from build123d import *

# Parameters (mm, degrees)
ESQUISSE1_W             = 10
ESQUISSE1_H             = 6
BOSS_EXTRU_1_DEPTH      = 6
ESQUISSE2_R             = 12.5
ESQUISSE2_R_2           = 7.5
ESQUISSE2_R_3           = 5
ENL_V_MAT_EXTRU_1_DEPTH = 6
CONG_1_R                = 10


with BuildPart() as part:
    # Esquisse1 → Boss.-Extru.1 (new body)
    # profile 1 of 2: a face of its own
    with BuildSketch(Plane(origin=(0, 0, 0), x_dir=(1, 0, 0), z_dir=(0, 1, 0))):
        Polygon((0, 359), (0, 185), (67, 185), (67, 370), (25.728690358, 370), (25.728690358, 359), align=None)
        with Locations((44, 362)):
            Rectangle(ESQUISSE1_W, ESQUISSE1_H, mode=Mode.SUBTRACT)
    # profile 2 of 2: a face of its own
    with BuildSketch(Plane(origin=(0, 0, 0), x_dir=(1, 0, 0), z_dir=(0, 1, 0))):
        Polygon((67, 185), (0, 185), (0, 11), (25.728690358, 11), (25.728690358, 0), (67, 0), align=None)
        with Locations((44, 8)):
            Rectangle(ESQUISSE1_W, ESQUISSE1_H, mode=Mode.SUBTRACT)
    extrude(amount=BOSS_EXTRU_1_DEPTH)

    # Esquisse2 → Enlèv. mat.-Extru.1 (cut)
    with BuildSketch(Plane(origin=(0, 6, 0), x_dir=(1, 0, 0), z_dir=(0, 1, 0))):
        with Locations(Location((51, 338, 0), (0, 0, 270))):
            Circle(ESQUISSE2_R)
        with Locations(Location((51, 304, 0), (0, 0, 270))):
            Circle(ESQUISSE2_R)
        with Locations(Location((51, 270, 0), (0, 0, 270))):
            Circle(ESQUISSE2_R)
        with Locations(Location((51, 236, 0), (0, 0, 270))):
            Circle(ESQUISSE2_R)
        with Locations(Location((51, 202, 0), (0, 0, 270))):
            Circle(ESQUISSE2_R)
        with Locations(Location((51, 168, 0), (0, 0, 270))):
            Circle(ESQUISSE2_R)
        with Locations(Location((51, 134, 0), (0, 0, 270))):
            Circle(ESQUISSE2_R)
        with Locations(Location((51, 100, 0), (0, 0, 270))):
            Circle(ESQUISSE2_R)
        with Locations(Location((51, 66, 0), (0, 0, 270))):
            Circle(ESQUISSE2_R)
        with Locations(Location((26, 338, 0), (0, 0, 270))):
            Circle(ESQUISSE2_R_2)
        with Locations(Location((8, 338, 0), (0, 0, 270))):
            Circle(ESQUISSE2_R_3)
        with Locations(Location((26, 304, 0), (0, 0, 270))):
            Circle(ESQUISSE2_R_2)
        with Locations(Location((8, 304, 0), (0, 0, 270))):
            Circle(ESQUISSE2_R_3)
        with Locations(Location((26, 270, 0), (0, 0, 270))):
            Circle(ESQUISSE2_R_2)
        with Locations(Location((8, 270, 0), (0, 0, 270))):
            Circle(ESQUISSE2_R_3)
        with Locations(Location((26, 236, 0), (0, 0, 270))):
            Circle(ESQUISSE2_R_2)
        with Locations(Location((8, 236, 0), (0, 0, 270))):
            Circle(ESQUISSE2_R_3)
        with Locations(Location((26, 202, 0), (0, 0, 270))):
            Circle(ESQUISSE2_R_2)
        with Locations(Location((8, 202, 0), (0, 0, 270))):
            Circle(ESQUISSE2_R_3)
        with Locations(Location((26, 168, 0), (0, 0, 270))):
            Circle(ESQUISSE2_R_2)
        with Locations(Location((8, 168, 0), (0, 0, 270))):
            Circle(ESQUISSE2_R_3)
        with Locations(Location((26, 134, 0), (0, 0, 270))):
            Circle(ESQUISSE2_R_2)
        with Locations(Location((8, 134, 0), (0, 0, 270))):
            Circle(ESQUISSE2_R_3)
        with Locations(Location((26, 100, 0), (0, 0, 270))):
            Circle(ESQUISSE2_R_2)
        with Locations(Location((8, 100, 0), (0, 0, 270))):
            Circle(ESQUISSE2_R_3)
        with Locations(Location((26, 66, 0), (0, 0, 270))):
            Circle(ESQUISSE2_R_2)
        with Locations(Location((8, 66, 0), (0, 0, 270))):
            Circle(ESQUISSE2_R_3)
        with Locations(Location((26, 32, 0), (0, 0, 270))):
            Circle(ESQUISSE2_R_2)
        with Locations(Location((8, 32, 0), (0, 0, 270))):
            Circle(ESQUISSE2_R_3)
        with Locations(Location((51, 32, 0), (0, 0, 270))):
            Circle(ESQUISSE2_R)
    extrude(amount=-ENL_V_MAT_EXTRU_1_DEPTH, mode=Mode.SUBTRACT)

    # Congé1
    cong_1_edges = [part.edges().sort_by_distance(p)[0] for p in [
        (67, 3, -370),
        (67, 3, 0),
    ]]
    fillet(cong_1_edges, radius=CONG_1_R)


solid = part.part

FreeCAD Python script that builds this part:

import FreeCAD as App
import Part
import Sketcher

V = App.Vector
Q = App.Units.Quantity


def edges_at(feature, points):
    """Names of the edges that pass closest to the given points."""
    edges = feature.Shape.Edges
    near = lambda p: min(range(len(edges)), key=lambda i: edges[i].distToShape(Part.Vertex(*p))[0])
    return sorted({f"Edge{near(p) + 1}" for p in points})

doc = App.newDocument("Part")
params = doc.addObject("Spreadsheet::Sheet", "Params")
for row, (alias, value) in enumerate([
    ("sketch1_width", "10 mm"),
    ("sketch1_height", "348 mm"),
    ("sketch1_height2", "11 mm"),
    ("sketch1_height3", "6 mm"),
    ("pad1_length", "6 mm"),
    ("sketch2_diameter", "25 mm"),
    ("sketch2_diameter2", "15 mm"),
    ("sketch2_diameter3", "10 mm"),
    ("pocket1_length", "6 mm"),
    ("fillet_radius", "10 mm"),
], start=1):
    params.set(f"A{row}", alias)
    params.set(f"B{row}", "=" + value)
    params.setAlias(f"B{row}", alias)

body = doc.addObject("PartDesign::Body", "Body")

sketch1 = doc.addObject("Sketcher::SketchObject", "Sketch")
body.addObject(sketch1)
sketch1.AttachmentSupport = (doc.XZ_Plane, [""])
sketch1.MapMode = "FlatFace"
sketch1.addGeometry(Part.LineSegment(V(0, -359, 0), V(0, -11, 0)), False)
sketch1.addGeometry(Part.LineSegment(V(0, -11, 0), V(26, -11, 0)), False)
sketch1.addGeometry(Part.LineSegment(V(26, -11, 0), V(26, 0, 0)), False)
sketch1.addGeometry(Part.LineSegment(V(26, 0, 0), V(67, 0, 0)), False)
sketch1.addGeometry(Part.LineSegment(V(67, 0, 0), V(67, -370, 0)), False)
sketch1.addGeometry(Part.LineSegment(V(67, -370, 0), V(26, -370, 0)), False)
sketch1.addGeometry(Part.LineSegment(V(26, -370, 0), V(26, -359, 0)), False)
sketch1.addGeometry(Part.LineSegment(V(26, -359, 0), V(0, -359, 0)), False)
sketch1.addGeometry(Part.LineSegment(V(49, -359, 0), V(39, -359, 0)), False)
sketch1.addGeometry(Part.LineSegment(V(39, -359, 0), V(39, -365, 0)), False)
sketch1.addGeometry(Part.LineSegment(V(39, -365, 0), V(49, -365, 0)), False)
sketch1.addGeometry(Part.LineSegment(V(49, -365, 0), V(49, -359, 0)), False)
sketch1.addGeometry(Part.LineSegment(V(39, -5, 0), V(39, -11, 0)), False)
sketch1.addGeometry(Part.LineSegment(V(39, -11, 0), V(49, -11, 0)), False)
sketch1.addGeometry(Part.LineSegment(V(49, -11, 0), V(49, -5, 0)), False)
sketch1.addGeometry(Part.LineSegment(V(49, -5, 0), V(39, -5, 0)), False)
sketch1.addConstraint(Sketcher.Constraint("Coincident", 0, 2, 1, 1))
sketch1.addConstraint(Sketcher.Constraint("Coincident", 1, 2, 2, 1))
sketch1.addConstraint(Sketcher.Constraint("Coincident", 2, 2, 3, 1))
sketch1.addConstraint(Sketcher.Constraint("Coincident", 3, 2, 4, 1))
sketch1.addConstraint(Sketcher.Constraint("Coincident", 4, 2, 5, 1))
sketch1.addConstraint(Sketcher.Constraint("Coincident", 5, 2, 6, 1))
sketch1.addConstraint(Sketcher.Constraint("Coincident", 6, 2, 7, 1))
sketch1.addConstraint(Sketcher.Constraint("Coincident", 7, 2, 0, 1))
sketch1.addConstraint(Sketcher.Constraint("Coincident", 8, 2, 9, 1))
sketch1.addConstraint(Sketcher.Constraint("Coincident", 9, 2, 10, 1))
sketch1.addConstraint(Sketcher.Constraint("Coincident", 10, 2, 11, 1))
sketch1.addConstraint(Sketcher.Constraint("Coincident", 11, 2, 8, 1))
sketch1.addConstraint(Sketcher.Constraint("Coincident", 12, 2, 13, 1))
sketch1.addConstraint(Sketcher.Constraint("Coincident", 13, 2, 14, 1))
sketch1.addConstraint(Sketcher.Constraint("Coincident", 14, 2, 15, 1))
sketch1.addConstraint(Sketcher.Constraint("Coincident", 15, 2, 12, 1))
sketch1.addConstraint(Sketcher.Constraint("Vertical", 0))
sketch1.addConstraint(Sketcher.Constraint("Horizontal", 1))
sketch1.addConstraint(Sketcher.Constraint("Vertical", 2))
sketch1.addConstraint(Sketcher.Constraint("Horizontal", 3))
sketch1.addConstraint(Sketcher.Constraint("Vertical", 4))
sketch1.addConstraint(Sketcher.Constraint("Horizontal", 5))
sketch1.addConstraint(Sketcher.Constraint("Vertical", 6))
sketch1.addConstraint(Sketcher.Constraint("Horizontal", 7))
sketch1.addConstraint(Sketcher.Constraint("Horizontal", 8))
sketch1.addConstraint(Sketcher.Constraint("Vertical", 9))
sketch1.addConstraint(Sketcher.Constraint("Horizontal", 10))
sketch1.addConstraint(Sketcher.Constraint("Vertical", 11))
sketch1.addConstraint(Sketcher.Constraint("Vertical", 12))
sketch1.addConstraint(Sketcher.Constraint("Horizontal", 13))
sketch1.addConstraint(Sketcher.Constraint("Vertical", 14))
sketch1.addConstraint(Sketcher.Constraint("Horizontal", 15))
sketch1.addConstraint(Sketcher.Constraint("PointOnObject", 0, 2, -2))
sketch1.addConstraint(Sketcher.Constraint("PointOnObject", 2, 2, -1))
sketch1.addConstraint(Sketcher.Constraint("Horizontal", 7, 2, 8, 2))
sketch1.addConstraint(Sketcher.Constraint("Horizontal", 1, 2, 12, 2))
sketch1.addConstraint(Sketcher.Constraint("Vertical", 2, 2, 5, 2))
sketch1.addConstraint(Sketcher.Constraint("Vertical", 9, 2, 12, 2))
sketch1.addConstraint(Sketcher.Constraint("Vertical", 11, 2, 13, 2))
sketch1.addConstraint(Sketcher.Constraint("Equal", 2, 6))
sketch1.addConstraint(Sketcher.Constraint("Equal", 11, 12))
sketch1.addConstraint(Sketcher.Constraint("DistanceX", 8, 2, 8, 1, Q("10 mm")))
sketch1.addConstraint(Sketcher.Constraint("DistanceY", 0, 1, 0, 2, Q("348 mm")))
sketch1.addConstraint(Sketcher.Constraint("DistanceY", 2, 1, 2, 2, Q("11 mm")))
sketch1.addConstraint(Sketcher.Constraint("DistanceY", 9, 2, 9, 1, Q("6 mm")))
sketch1.addConstraint(Sketcher.Constraint("DistanceX", -1, 1, 3, 2, Q("67 mm")))
sketch1.addConstraint(Sketcher.Constraint("DistanceX", -1, 1, 8, 2, Q("39 mm")))
sketch1.addConstraint(Sketcher.Constraint("DistanceX", 1, 1, 1, 2, Q("25.72869 mm")))
sketch1.setExpression("Constraints[41]", "Params.sketch1_width")
sketch1.setExpression("Constraints[42]", "Params.sketch1_height")
sketch1.setExpression("Constraints[43]", "Params.sketch1_height2")
sketch1.setExpression("Constraints[44]", "Params.sketch1_height3")
pad1 = doc.addObject("PartDesign::Pad", "Pad")
body.addObject(pad1)
pad1.Profile = sketch1
pad1.setExpression("Length", "Params.pad1_length")
pad1.Reversed = True

sketch2 = doc.addObject("Sketcher::SketchObject", "Sketch001")
body.addObject(sketch2)
sketch2.AttachmentSupport = (doc.XZ_Plane, [""])
sketch2.MapMode = "FlatFace"
sketch2.AttachmentOffset = App.Placement(V(0, 0, -6), App.Rotation())
sketch2.addGeometry(Part.Circle(V(51, -338, 0), V(0, 0, 1), 12), False)
sketch2.addGeometry(Part.Circle(V(51, -304, 0), V(0, 0, 1), 12), False)
sketch2.addGeometry(Part.Circle(V(51, -270, 0), V(0, 0, 1), 12), False)
sketch2.addGeometry(Part.Circle(V(51, -236, 0), V(0, 0, 1), 12), False)
sketch2.addGeometry(Part.Circle(V(51, -202, 0), V(0, 0, 1), 12), False)
sketch2.addGeometry(Part.Circle(V(51, -168, 0), V(0, 0, 1), 12), False)
sketch2.addGeometry(Part.Circle(V(51, -134, 0), V(0, 0, 1), 12), False)
sketch2.addGeometry(Part.Circle(V(51, -100, 0), V(0, 0, 1), 12), False)
sketch2.addGeometry(Part.Circle(V(51, -66, 0), V(0, 0, 1), 12), False)
sketch2.addGeometry(Part.Circle(V(26, -338, 0), V(0, 0, 1), 8), False)
sketch2.addGeometry(Part.Circle(V(8, -338, 0), V(0, 0, 1), 5), False)
sketch2.addGeometry(Part.Circle(V(26, -304, 0), V(0, 0, 1), 8), False)
sketch2.addGeometry(Part.Circle(V(8, -304, 0), V(0, 0, 1), 5), False)
sketch2.addGeometry(Part.Circle(V(26, -270, 0), V(0, 0, 1), 8), False)
sketch2.addGeometry(Part.Circle(V(8, -270, 0), V(0, 0, 1), 5), False)
sketch2.addGeometry(Part.Circle(V(26, -236, 0), V(0, 0, 1), 8), False)
sketch2.addGeometry(Part.Circle(V(8, -236, 0), V(0, 0, 1), 5), False)
sketch2.addGeometry(Part.Circle(V(26, -202, 0), V(0, 0, 1), 8), False)
sketch2.addGeometry(Part.Circle(V(8, -202, 0), V(0, 0, 1), 5), False)
sketch2.addGeometry(Part.Circle(V(26, -168, 0), V(0, 0, 1), 8), False)
sketch2.addGeometry(Part.Circle(V(8, -168, 0), V(0, 0, 1), 5), False)
sketch2.addGeometry(Part.Circle(V(26, -134, 0), V(0, 0, 1), 8), False)
sketch2.addGeometry(Part.Circle(V(8, -134, 0), V(0, 0, 1), 5), False)
sketch2.addGeometry(Part.Circle(V(26, -100, 0), V(0, 0, 1), 8), False)
sketch2.addGeometry(Part.Circle(V(8, -100, 0), V(0, 0, 1), 5), False)
sketch2.addGeometry(Part.Circle(V(26, -66, 0), V(0, 0, 1), 8), False)
sketch2.addGeometry(Part.Circle(V(8, -66, 0), V(0, 0, 1), 5), False)
sketch2.addGeometry(Part.Circle(V(26, -32, 0), V(0, 0, 1), 8), False)
sketch2.addGeometry(Part.Circle(V(8, -32, 0), V(0, 0, 1), 5), False)
sketch2.addGeometry(Part.Circle(V(51, -32, 0), V(0, 0, 1), 12), False)
sketch2.addConstraint(Sketcher.Constraint("Equal", 0, 1))
sketch2.addConstraint(Sketcher.Constraint("Equal", 1, 2))
sketch2.addConstraint(Sketcher.Constraint("Equal", 2, 3))
sketch2.addConstraint(Sketcher.Constraint("Equal", 3, 4))
sketch2.addConstraint(Sketcher.Constraint("Equal", 4, 5))
sketch2.addConstraint(Sketcher.Constraint("Equal", 5, 6))
sketch2.addConstraint(Sketcher.Constraint("Equal", 6, 7))
sketch2.addConstraint(Sketcher.Constraint("Equal", 7, 8))
sketch2.addConstraint(Sketcher.Constraint("Equal", 9, 11))
sketch2.addConstraint(Sketcher.Constraint("Equal", 10, 12))
sketch2.addConstraint(Sketcher.Constraint("Equal", 11, 13))
sketch2.addConstraint(Sketcher.Constraint("Equal", 12, 14))
sketch2.addConstraint(Sketcher.Constraint("Equal", 13, 15))
sketch2.addConstraint(Sketcher.Constraint("Equal", 14, 16))
sketch2.addConstraint(Sketcher.Constraint("Equal", 15, 17))
sketch2.addConstraint(Sketcher.Constraint("Equal", 16, 18))
sketch2.addConstraint(Sketcher.Constraint("Equal", 17, 19))
sketch2.addConstraint(Sketcher.Constraint("Equal", 18, 20))
sketch2.addConstraint(Sketcher.Constraint("Equal", 19, 21))
sketch2.addConstraint(Sketcher.Constraint("Equal", 20, 22))
sketch2.addConstraint(Sketcher.Constraint("Equal", 21, 23))
sketch2.addConstraint(Sketcher.Constraint("Equal", 22, 24))
sketch2.addConstraint(Sketcher.Constraint("Equal", 23, 25))
sketch2.addConstraint(Sketcher.Constraint("Equal", 24, 26))
sketch2.addConstraint(Sketcher.Constraint("Equal", 25, 27))
sketch2.addConstraint(Sketcher.Constraint("Equal", 26, 28))
sketch2.addConstraint(Sketcher.Constraint("Equal", 8, 29))
sketch2.addConstraint(Sketcher.Constraint("Horizontal", 0, 3, 9, 3))
sketch2.addConstraint(Sketcher.Constraint("Horizontal", 9, 3, 10, 3))
sketch2.addConstraint(Sketcher.Constraint("Horizontal", 1, 3, 11, 3))
sketch2.addConstraint(Sketcher.Constraint("Horizontal", 11, 3, 12, 3))
sketch2.addConstraint(Sketcher.Constraint("Horizontal", 2, 3, 13, 3))
sketch2.addConstraint(Sketcher.Constraint("Horizontal", 13, 3, 14, 3))
sketch2.addConstraint(Sketcher.Constraint("Horizontal", 3, 3, 15, 3))
sketch2.addConstraint(Sketcher.Constraint("Horizontal", 15, 3, 16, 3))
sketch2.addConstraint(Sketcher.Constraint("Horizontal", 4, 3, 17, 3))
sketch2.addConstraint(Sketcher.Constraint("Horizontal", 17, 3, 18, 3))
sketch2.addConstraint(Sketcher.Constraint("Horizontal", 5, 3, 19, 3))
sketch2.addConstraint(Sketcher.Constraint("Horizontal", 19, 3, 20, 3))
sketch2.addConstraint(Sketcher.Constraint("Horizontal", 6, 3, 21, 3))
sketch2.addConstraint(Sketcher.Constraint("Horizontal", 21, 3, 22, 3))
sketch2.addConstraint(Sketcher.Constraint("Horizontal", 7, 3, 23, 3))
sketch2.addConstraint(Sketcher.Constraint("Horizontal", 23, 3, 24, 3))
sketch2.addConstraint(Sketcher.Constraint("Horizontal", 8, 3, 25, 3))
sketch2.addConstraint(Sketcher.Constraint("Horizontal", 25, 3, 26, 3))
sketch2.addConstraint(Sketcher.Constraint("Horizontal", 27, 3, 28, 3))
sketch2.addConstraint(Sketcher.Constraint("Horizontal", 28, 3, 29, 3))
sketch2.addConstraint(Sketcher.Constraint("Vertical", 0, 3, 1, 3))
sketch2.addConstraint(Sketcher.Constraint("Vertical", 1, 3, 2, 3))
sketch2.addConstraint(Sketcher.Constraint("Vertical", 2, 3, 3, 3))
sketch2.addConstraint(Sketcher.Constraint("Vertical", 3, 3, 4, 3))
sketch2.addConstraint(Sketcher.Constraint("Vertical", 4, 3, 5, 3))
sketch2.addConstraint(Sketcher.Constraint("Vertical", 5, 3, 6, 3))
sketch2.addConstraint(Sketcher.Constraint("Vertical", 6, 3, 7, 3))
sketch2.addConstraint(Sketcher.Constraint("Vertical", 7, 3, 8, 3))
sketch2.addConstraint(Sketcher.Constraint("Vertical", 9, 3, 11, 3))
sketch2.addConstraint(Sketcher.Constraint("Vertical", 10, 3, 12, 3))
sketch2.addConstraint(Sketcher.Constraint("Vertical", 11, 3, 13, 3))
sketch2.addConstraint(Sketcher.Constraint("Vertical", 12, 3, 14, 3))
sketch2.addConstraint(Sketcher.Constraint("Vertical", 13, 3, 15, 3))
sketch2.addConstraint(Sketcher.Constraint("Vertical", 14, 3, 16, 3))
sketch2.addConstraint(Sketcher.Constraint("Vertical", 15, 3, 17, 3))
sketch2.addConstraint(Sketcher.Constraint("Vertical", 16, 3, 18, 3))
sketch2.addConstraint(Sketcher.Constraint("Vertical", 17, 3, 19, 3))
sketch2.addConstraint(Sketcher.Constraint("Vertical", 18, 3, 20, 3))
sketch2.addConstraint(Sketcher.Constraint("Vertical", 19, 3, 21, 3))
sketch2.addConstraint(Sketcher.Constraint("Vertical", 20, 3, 22, 3))
sketch2.addConstraint(Sketcher.Constraint("Vertical", 21, 3, 23, 3))
sketch2.addConstraint(Sketcher.Constraint("Vertical", 22, 3, 24, 3))
sketch2.addConstraint(Sketcher.Constraint("Vertical", 23, 3, 25, 3))
sketch2.addConstraint(Sketcher.Constraint("Vertical", 24, 3, 26, 3))
sketch2.addConstraint(Sketcher.Constraint("Vertical", 25, 3, 27, 3))
sketch2.addConstraint(Sketcher.Constraint("Vertical", 26, 3, 28, 3))
sketch2.addConstraint(Sketcher.Constraint("Vertical", 8, 3, 29, 3))
sketch2.addConstraint(Sketcher.Constraint("Diameter", 0, Q("25 mm")))
sketch2.addConstraint(Sketcher.Constraint("Diameter", 9, Q("15 mm")))
sketch2.addConstraint(Sketcher.Constraint("Diameter", 10, Q("10 mm")))
sketch2.addConstraint(Sketcher.Constraint("DistanceX", -1, 1, 0, 3, Q("51 mm")))
sketch2.addConstraint(Sketcher.Constraint("DistanceY", 0, 3, -1, 1, Q("338 mm")))
sketch2.addConstraint(Sketcher.Constraint("DistanceY", 1, 3, -1, 1, Q("304 mm")))
sketch2.addConstraint(Sketcher.Constraint("DistanceY", 2, 3, -1, 1, Q("270 mm")))
sketch2.addConstraint(Sketcher.Constraint("DistanceY", 3, 3, -1, 1, Q("236 mm")))
sketch2.addConstraint(Sketcher.Constraint("DistanceY", 4, 3, -1, 1, Q("202 mm")))
sketch2.addConstraint(Sketcher.Constraint("DistanceY", 5, 3, -1, 1, Q("168 mm")))
sketch2.addConstraint(Sketcher.Constraint("DistanceY", 6, 3, -1, 1, Q("134 mm")))
sketch2.addConstraint(Sketcher.Constraint("DistanceY", 7, 3, -1, 1, Q("100 mm")))
sketch2.addConstraint(Sketcher.Constraint("DistanceY", 8, 3, -1, 1, Q("66 mm")))
sketch2.addConstraint(Sketcher.Constraint("DistanceX", -1, 1, 9, 3, Q("26 mm")))
sketch2.addConstraint(Sketcher.Constraint("DistanceX", -1, 1, 10, 3, Q("8 mm")))
sketch2.addConstraint(Sketcher.Constraint("DistanceY", 27, 3, -1, 1, Q("32 mm")))
sketch2.setExpression("Constraints[74]", "Params.sketch2_diameter")
sketch2.setExpression("Constraints[75]", "Params.sketch2_diameter2")
sketch2.setExpression("Constraints[76]", "Params.sketch2_diameter3")
pocket1 = doc.addObject("PartDesign::Pocket", "Pocket")
body.addObject(pocket1)
pocket1.Profile = sketch2
pocket1.setExpression("Length", "Params.pocket1_length")
pocket1.Reversed = True
doc.recompute()

fillet = doc.addObject("PartDesign::Fillet", "Fillet")
body.addObject(fillet)
fillet.Base = (pocket1, edges_at(pocket1, [(67, 3, -370), (67, 3, 0)]))
fillet.setExpression("Radius", "Params.fillet_radius")

doc.recompute()
